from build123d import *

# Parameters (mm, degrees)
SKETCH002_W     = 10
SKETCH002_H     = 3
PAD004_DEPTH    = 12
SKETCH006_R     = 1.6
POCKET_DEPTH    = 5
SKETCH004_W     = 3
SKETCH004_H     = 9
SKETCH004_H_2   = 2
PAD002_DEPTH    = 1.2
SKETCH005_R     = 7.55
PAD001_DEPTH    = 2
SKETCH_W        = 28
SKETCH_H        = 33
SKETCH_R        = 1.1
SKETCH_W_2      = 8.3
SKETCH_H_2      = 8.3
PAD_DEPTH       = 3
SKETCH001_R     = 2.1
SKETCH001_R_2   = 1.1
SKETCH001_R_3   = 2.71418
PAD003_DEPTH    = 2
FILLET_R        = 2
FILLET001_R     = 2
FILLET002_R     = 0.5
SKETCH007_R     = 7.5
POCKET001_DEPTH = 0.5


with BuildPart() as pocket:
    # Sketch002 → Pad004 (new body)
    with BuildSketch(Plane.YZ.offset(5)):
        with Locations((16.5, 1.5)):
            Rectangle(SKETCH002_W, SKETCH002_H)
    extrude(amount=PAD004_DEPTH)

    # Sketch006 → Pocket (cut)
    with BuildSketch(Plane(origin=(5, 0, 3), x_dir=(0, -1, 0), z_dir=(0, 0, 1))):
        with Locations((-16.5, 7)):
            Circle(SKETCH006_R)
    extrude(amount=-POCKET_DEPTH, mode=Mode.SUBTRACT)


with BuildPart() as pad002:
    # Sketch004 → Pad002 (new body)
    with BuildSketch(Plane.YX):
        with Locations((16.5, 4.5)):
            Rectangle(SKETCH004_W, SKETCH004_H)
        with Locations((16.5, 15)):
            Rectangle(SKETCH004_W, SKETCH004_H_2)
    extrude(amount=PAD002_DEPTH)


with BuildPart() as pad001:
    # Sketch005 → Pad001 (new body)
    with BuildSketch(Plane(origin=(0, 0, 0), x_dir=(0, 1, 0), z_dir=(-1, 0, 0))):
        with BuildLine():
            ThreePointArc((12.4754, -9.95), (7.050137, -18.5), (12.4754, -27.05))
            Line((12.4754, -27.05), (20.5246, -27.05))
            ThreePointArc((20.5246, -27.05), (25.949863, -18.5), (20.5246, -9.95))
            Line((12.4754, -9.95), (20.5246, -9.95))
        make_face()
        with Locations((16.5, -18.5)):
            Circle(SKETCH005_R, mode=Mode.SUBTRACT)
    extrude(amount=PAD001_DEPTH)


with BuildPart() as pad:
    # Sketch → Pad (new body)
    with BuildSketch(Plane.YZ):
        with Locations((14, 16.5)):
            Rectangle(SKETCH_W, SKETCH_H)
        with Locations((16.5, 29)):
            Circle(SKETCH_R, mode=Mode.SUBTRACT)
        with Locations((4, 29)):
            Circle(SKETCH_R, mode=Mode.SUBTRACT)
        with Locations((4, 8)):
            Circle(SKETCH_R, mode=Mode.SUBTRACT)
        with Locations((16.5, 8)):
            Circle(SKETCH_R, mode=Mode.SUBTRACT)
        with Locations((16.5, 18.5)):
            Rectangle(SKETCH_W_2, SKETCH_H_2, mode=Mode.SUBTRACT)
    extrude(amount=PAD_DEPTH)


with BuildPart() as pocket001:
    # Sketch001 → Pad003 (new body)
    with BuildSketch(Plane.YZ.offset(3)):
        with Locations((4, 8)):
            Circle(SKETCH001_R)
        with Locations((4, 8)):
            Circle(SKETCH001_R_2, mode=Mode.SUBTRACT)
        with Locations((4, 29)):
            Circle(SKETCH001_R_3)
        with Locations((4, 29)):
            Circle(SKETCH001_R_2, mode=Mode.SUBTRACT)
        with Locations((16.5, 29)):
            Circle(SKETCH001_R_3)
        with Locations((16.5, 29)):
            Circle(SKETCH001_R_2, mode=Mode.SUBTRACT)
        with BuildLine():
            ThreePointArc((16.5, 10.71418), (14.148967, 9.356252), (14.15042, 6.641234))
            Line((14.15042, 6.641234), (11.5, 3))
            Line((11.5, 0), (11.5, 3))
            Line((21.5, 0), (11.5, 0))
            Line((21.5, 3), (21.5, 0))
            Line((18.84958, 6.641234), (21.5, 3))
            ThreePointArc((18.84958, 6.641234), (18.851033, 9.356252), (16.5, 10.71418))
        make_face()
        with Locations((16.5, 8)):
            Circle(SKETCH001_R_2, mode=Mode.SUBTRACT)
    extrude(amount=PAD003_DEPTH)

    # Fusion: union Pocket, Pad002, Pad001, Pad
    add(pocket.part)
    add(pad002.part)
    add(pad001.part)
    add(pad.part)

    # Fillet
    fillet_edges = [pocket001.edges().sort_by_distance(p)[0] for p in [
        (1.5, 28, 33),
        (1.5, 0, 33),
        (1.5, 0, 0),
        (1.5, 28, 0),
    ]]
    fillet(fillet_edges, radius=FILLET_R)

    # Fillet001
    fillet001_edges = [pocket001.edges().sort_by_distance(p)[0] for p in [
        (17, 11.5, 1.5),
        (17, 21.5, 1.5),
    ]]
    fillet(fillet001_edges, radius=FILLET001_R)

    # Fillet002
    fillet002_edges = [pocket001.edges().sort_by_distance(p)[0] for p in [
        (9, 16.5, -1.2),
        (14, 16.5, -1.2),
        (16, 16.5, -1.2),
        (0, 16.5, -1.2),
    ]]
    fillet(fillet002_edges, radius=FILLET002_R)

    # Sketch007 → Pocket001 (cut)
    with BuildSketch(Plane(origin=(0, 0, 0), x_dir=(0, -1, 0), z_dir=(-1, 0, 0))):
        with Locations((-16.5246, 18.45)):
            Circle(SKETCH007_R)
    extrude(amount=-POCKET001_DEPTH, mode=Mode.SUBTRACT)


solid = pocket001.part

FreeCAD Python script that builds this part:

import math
import FreeCAD as App
import Part
import Sketcher
from FreeCAD import Vector
Q = App.Units.Quantity


def edges_at(feature, points):
    """Names of the edges that pass closest to the given points."""
    edges = feature.Shape.Edges
    near = lambda p: min(range(len(edges)), key=lambda i: edges[i].distToShape(Part.Vertex(*p))[0])
    return sorted({f"Edge{near(p) + 1}" for p in points})


def add_polygon(sketch, points):
    """Adds a closed chain of lines whose ends are joined by coincident constraints."""
    first, n = sketch.GeometryCount, len(points)
    for a, b in zip(points, points[1:] + points[:1]):
        sketch.addGeometry(Part.LineSegment(App.Vector(*a, 0), App.Vector(*b, 0)), False)
    for i in range(n):
        sketch.addConstraint(Sketcher.Constraint("Coincident", first + i, 2, first + (i + 1) % n, 1))

doc = App.newDocument("Part")
body = doc.addObject("PartDesign::Body", "Body")

# Sketch on YZ plane
sketch1 = body.newObject("Sketcher::SketchObject", "Sketch")
sketch1.AttachmentSupport = (doc.getObject("YZ_Plane"), [""])
sketch1.MapMode = "FlatFace"
sketch1.AttachmentOffset = App.Placement(Vector(0, 0, 5), App.Rotation())
add_polygon(sketch1, [(11.5, 3), (11.5, 0), (21.5, 0), (21.5, 3)])  # lines 0-3
sketch1.addConstraint([
    Sketcher.Constraint("Vertical", 0),
    Sketcher.Constraint("Horizontal", 1),
    Sketcher.Constraint("Vertical", 2),
    Sketcher.Constraint("Horizontal", 3),
    Sketcher.Constraint("PointOnObject", 0, 2, -1),
    Sketcher.Constraint("DistanceX", 1, 1, 1, 2, Q("10 mm")),
    Sketcher.Constraint("DistanceY", 0, 2, 0, 1, Q("3 mm")),
    Sketcher.Constraint("DistanceX", -1, 1, 0, 2, Q("11.5 mm")),
])
pad1 = body.newObject("PartDesign::Pad", "Pad")
pad1.Profile = sketch1
pad1.Length = 12

# Sketch on XY plane
sketch2 = body.newObject("Sketcher::SketchObject", "Sketch001")
sketch2.AttachmentSupport = (doc.getObject("XY_Plane"), [""])
sketch2.MapMode = "FlatFace"
sketch2.AttachmentOffset = App.Placement(Vector(0, 0, 3), App.Rotation())
sketch2.addGeometry(Part.Circle(Vector(12, 16.5, 0), Vector(0, 0, 1), 1.6), False)
sketch2.addConstraint([
    Sketcher.Constraint("Diameter", 0, Q("3.2 mm")),
    Sketcher.Constraint("DistanceX", -1, 1, 0, 3, Q("12 mm")),
    Sketcher.Constraint("DistanceY", -1, 1, 0, 3, Q("16.5 mm")),
])
pocket1 = body.newObject("PartDesign::Pocket", "Pocket")
pocket1.Profile = sketch2
pocket1.Length = 5
body2 = doc.addObject("PartDesign::Body", "Body001")
body2.AllowCompound = True

# Sketch on XY plane
sketch3 = body2.newObject("Sketcher::SketchObject", "Sketch002")
sketch3.AttachmentSupport = (doc.getObject("XY_Plane001"), [""])
sketch3.MapMode = "FlatFace"
add_polygon(sketch3, [(9, 15), (0, 15), (0, 18), (9, 18)])  # lines 0-3
add_polygon(sketch3, [(16, 15), (14, 15), (14, 18), (16, 18)])  # lines 4-7
sketch3.addConstraint([
    Sketcher.Constraint("Horizontal", 0),
    Sketcher.Constraint("Vertical", 1),
    Sketcher.Constraint("Horizontal", 2),
    Sketcher.Constraint("Vertical", 3),
    Sketcher.Constraint("Horizontal", 4),
    Sketcher.Constraint("Vertical", 5),
    Sketcher.Constraint("Horizontal", 6),
    Sketcher.Constraint("Vertical", 7),
    Sketcher.Constraint("PointOnObject", 0, 2, -2),
    Sketcher.Constraint("Horizontal", 3, 2, 4, 2),
    Sketcher.Constraint("Horizontal", 2, 2, 5, 2),
    Sketcher.Constraint("DistanceX", 0, 2, 0, 1, Q("9 mm")),
    Sketcher.Constraint("DistanceX", 4, 2, 4, 1, Q("2 mm")),
    Sketcher.Constraint("DistanceY", 1, 1, 1, 2, Q("3 mm")),
    Sketcher.Constraint("DistanceY", -1, 1, 0, 2, Q("15 mm")),
    Sketcher.Constraint("DistanceX", -1, 1, 4, 2, Q("14 mm")),
])
pad2 = body2.newObject("PartDesign::Pad", "Pad001")
pad2.Profile = sketch3
pad2.Length = 1.2
pad2.Reversed = True
body3 = doc.addObject("PartDesign::Body", "Body002")

# Sketch on YZ plane
sketch4 = body3.newObject("Sketcher::SketchObject", "Sketch003")
sketch4.AttachmentSupport = (doc.getObject("YZ_Plane002"), [""])
sketch4.MapMode = "FlatFace"
sketch4.addGeometry([
    Part.ArcOfCircle(Part.Circle(Vector(16, 18, 0), Vector(0, 0, 1), 9), math.radians(115), math.radians(245)),  # 0
    Part.LineSegment(Vector(12, 27, 0), Vector(21, 27, 0)),  # 1
    Part.ArcOfCircle(Part.Circle(Vector(17, 18, 0), Vector(0, 0, 1), 9), math.radians(-65), math.radians(65)),  # 2
    Part.LineSegment(Vector(21, 10, 0), Vector(12, 10, 0)),  # 3
    Part.Circle(Vector(16, 18, 0), Vector(0, 0, 1), 8),  # 4
], False)
sketch4.addConstraint([
    Sketcher.Constraint("Coincident", 0, 1, 1, 1),
    Sketcher.Constraint("Coincident", 1, 2, 2, 2),
    Sketcher.Constraint("Coincident", 2, 1, 3, 1),
    Sketcher.Constraint("Coincident", 3, 2, 0, 2),
    Sketcher.Constraint("Horizontal", 1),
    Sketcher.Constraint("Horizontal", 3),
    Sketcher.Constraint("Coincident", 2, 3, 0, 3),
    Sketcher.Constraint("Coincident", 4, 3, 0, 3),
    Sketcher.Constraint("Equal", 0, 2),
    Sketcher.Constraint("Vertical", 1, 2, 2, 1),
    Sketcher.Constraint("Diameter", 4, Q("15.1 mm")),
    Sketcher.Constraint("DistanceX", -1, 1, 0, 3, Q("16.499999 mm")),
    Sketcher.Constraint("DistanceY", -1, 1, 0, 3, Q("18.5 mm")),
    Sketcher.Constraint("DistanceY", 2, 1, 1, 2, Q("17.1 mm")),
    Sketcher.Constraint("DistanceX", 1, 1, 1, 2, Q("8.0492 mm")),
])
pad3 = body3.newObject("PartDesign::Pad", "Pad002")
pad3.Profile = sketch4
pad3.Length = 2
pad3.Reversed = True
body4 = doc.addObject("PartDesign::Body", "Body003")

# Sketch on YZ plane
sketch5 = body4.newObject("Sketcher::SketchObject", "Sketch004")
sketch5.AttachmentSupport = (doc.getObject("YZ_Plane003"), [""])
sketch5.MapMode = "FlatFace"
add_polygon(sketch5, [(0, 33), (0, 0), (28, 0), (28, 33)])  # lines 0-3
sketch5.addGeometry(Part.Circle(Vector(4, 8, 0), Vector(0, 0, 1), 1.1), False)  # 4
sketch5.addGeometry(Part.Circle(Vector(16.5, 8, 0), Vector(0, 0, 1), 1.1), False)  # 5
sketch5.addGeometry(Part.Circle(Vector(4, 29, 0), Vector(0, 0, 1), 1.1), False)  # 6
add_polygon(sketch5, [(20.6, 14.3), (12.3, 14.3), (12.3, 22.6), (20.6, 22.6)])  # lines 7-10
sketch5.addGeometry(Part.Circle(Vector(16.5, 29, 0), Vector(0, 0, 1), 1.1), False)  # 11
sketch5.addConstraint([
    Sketcher.Constraint("Vertical", 0),
    Sketcher.Constraint("Horizontal", 1),
    Sketcher.Constraint("Vertical", 2),
    Sketcher.Constraint("Horizontal", 3),
    Sketcher.Constraint("Horizontal", 7),
    Sketcher.Constraint("Vertical", 8),
    Sketcher.Constraint("Horizontal", 9),
    Sketcher.Constraint("Vertical", 10),
    Sketcher.Constraint("Coincident", 0, 2, -1, 1),
    Sketcher.Constraint("Equal", 4, 5),
    Sketcher.Constraint("Equal", 5, 6),
    Sketcher.Constraint("Equal", 6, 11),
    Sketcher.Constraint("Horizontal", 4, 3, 5, 3),
    Sketcher.Constraint("Horizontal", 6, 3, 11, 3),
    Sketcher.Constraint("Vertical", 4, 3, 6, 3),
    Sketcher.Constraint("Vertical", 5, 3, 11, 3),
    Sketcher.Constraint("Equal", 9, 8),
    Sketcher.Constraint("Diameter", 4, Q("2.2 mm")),
    Sketcher.Constraint("DistanceX", 1, 1, 1, 2, Q("28 mm")),
    Sketcher.Constraint("DistanceY", 0, 2, 0, 1, Q("33 mm")),
    Sketcher.Constraint("DistanceX", 7, 2, 7, 1, Q("8.3 mm")),
    Sketcher.Constraint("DistanceX", -1, 1, 4, 3, Q("4 mm")),
    Sketcher.Constraint("DistanceY", -1, 1, 4, 3, Q("8 mm")),
    Sketcher.Constraint("DistanceY", -1, 1, 6, 3, Q("29 mm")),
    Sketcher.Constraint("DistanceX", -1, 1, 5, 3, Q("16.5 mm")),
    Sketcher.Constraint("DistanceX", -1, 1, 7, 2, Q("12.35 mm")),
    Sketcher.Constraint("DistanceY", -1, 1, 7, 2, Q("14.35 mm")),
])
pad4 = body4.newObject("PartDesign::Pad", "Pad003")
pad4.Profile = sketch5
pad4.Length = 3
body5 = doc.addObject("PartDesign::Body", "Body004")
body5.AllowCompound = True

# Sketch on YZ plane
sketch6 = body5.newObject("Sketcher::SketchObject", "Sketch005")
sketch6.AttachmentSupport = (doc.getObject("YZ_Plane004"), [""])
sketch6.MapMode = "FlatFace"
sketch6.AttachmentOffset = App.Placement(Vector(0, 0, 3), App.Rotation())
sketch6.addGeometry([
    Part.Circle(Vector(4, 8, 0), Vector(0, 0, 1), 2.1),  # 0
    Part.Circle(Vector(4, 8, 0), Vector(0, 0, 1), 1.1),  # 1
    Part.Circle(Vector(4, 29, 0), Vector(0, 0, 1), 2.7),  # 2
    Part.Circle(Vector(4, 29, 0), Vector(0, 0, 1), 1.1),  # 3
    Part.Circle(Vector(16.5, 29, 0), Vector(0, 0, 1), 2.7),  # 4
    Part.Circle(Vector(16.5, 29, 0), Vector(0, 0, 1), 1.1),  # 5
    Part.ArcOfCircle(Part.Circle(Vector(16.5, 8, 0), Vector(0, 0, 1), 2.7), math.radians(90), math.radians(210)),  # 6
    Part.LineSegment(Vector(14.2, 6.6, 0), Vector(11.5, 3, 0)),  # 7
    Part.LineSegment(Vector(11.5, 3, 0), Vector(11.5, 0, 0)),  # 8
    Part.LineSegment(Vector(11.5, 0, 0), Vector(21.5, 0, 0)),  # 9
    Part.LineSegment(Vector(21.5, 0, 0), Vector(21.5, 3, 0)),  # 10
    Part.LineSegment(Vector(21.5, 3, 0), Vector(18.8, 6.6, 0)),  # 11
    Part.ArcOfCircle(Part.Circle(Vector(16.5, 8, 0), Vector(0, 0, 1), 2.7), math.radians(-30), math.radians(90)),  # 12
    Part.Circle(Vector(16.5, 8, 0), Vector(0, 0, 1), 1.1),  # 13
], False)
sketch6.addConstraint([
    Sketcher.Constraint("Coincident", 6, 2, 7, 1),
    Sketcher.Constraint("Coincident", 7, 2, 8, 1),
    Sketcher.Constraint("Coincident", 8, 2, 9, 1),
    Sketcher.Constraint("Coincident", 9, 2, 10, 1),
    Sketcher.Constraint("Coincident", 10, 2, 11, 1),
    Sketcher.Constraint("Coincident", 11, 2, 12, 1),
    Sketcher.Constraint("Tangent", 12, 2, 6, 1),
    Sketcher.Constraint("Vertical", 8),
    Sketcher.Constraint("Horizontal", 9),
    Sketcher.Constraint("Vertical", 10),
    Sketcher.Constraint("Coincident", 1, 3, 0, 3),
    Sketcher.Constraint("Coincident", 3, 3, 2, 3),
    Sketcher.Constraint("Coincident", 5, 3, 4, 3),
    Sketcher.Constraint("Coincident", 13, 3, 6, 3),
    Sketcher.Constraint("Equal", 1, 3),
    Sketcher.Constraint("Equal", 2, 4),
    Sketcher.Constraint("Equal", 3, 5),
    Sketcher.Constraint("Equal", 4, 6),
    Sketcher.Constraint("Equal", 6, 12),
    Sketcher.Constraint("Equal", 5, 13),
    Sketcher.Constraint("PointOnObject", 8, 2, -1),
    Sketcher.Constraint("Horizontal", 3, 3, 4, 3),
    Sketcher.Constraint("Horizontal", 1, 3, 6, 3),
    Sketcher.Constraint("Horizontal", 7, 2, 10, 2),
    Sketcher.Constraint("Horizontal", 6, 2, 11, 2),
    Sketcher.Constraint("Vertical", 1, 3, 2, 3),
    Sketcher.Constraint("Vertical", 5, 3, 6, 3),
    Sketcher.Constraint("Vertical", 13, 3, 12, 2),
    Sketcher.Constraint("Equal", 7, 11),
    Sketcher.Constraint("Diameter", 0, Q("4.2 mm")),
    Sketcher.Constraint("Diameter", 1, Q("2.2 mm")),
    Sketcher.Constraint("DistanceX", 9, 1, 9, 2, Q("10 mm")),
    Sketcher.Constraint("DistanceY", 8, 2, 8, 1, Q("3 mm")),
    Sketcher.Constraint("DistanceX", -1, 1, 0, 3, Q("4 mm")),
    Sketcher.Constraint("DistanceY", -1, 1, 0, 3, Q("8 mm")),
    Sketcher.Constraint("DistanceY", -1, 1, 2, 3, Q("29 mm")),
    Sketcher.Constraint("DistanceX", -1, 1, 4, 3, Q("16.5 mm")),
    Sketcher.Constraint("Diameter", 2, Q("5.42836 mm")),
    Sketcher.Constraint("Distance", 7, Q("4.5037 mm")),
])
pad5 = body5.newObject("PartDesign::Pad", "Pad004")
pad5.Profile = sketch6
pad5.Length = 2
doc.recompute()

boolean = body5.newObject("PartDesign::Boolean", "Boolean")
boolean.Type = "Fuse"
boolean.addObjects([body])
doc.recompute()

boolean2 = body5.newObject("PartDesign::Boolean", "Boolean001")
boolean2.Type = "Fuse"
boolean2.addObjects([body2])
doc.recompute()

boolean3 = body5.newObject("PartDesign::Boolean", "Boolean002")
boolean3.Type = "Fuse"
boolean3.addObjects([body3])
doc.recompute()

boolean4 = body5.newObject("PartDesign::Boolean", "Boolean003")
boolean4.Type = "Fuse"
boolean4.addObjects([body4])
doc.recompute()

fillet = body5.newObject("PartDesign::Fillet", "Fillet")
fillet.Base = (boolean4, edges_at(boolean4, [
    (1.5, 28, 33),
    (1.5, 0, 33),
    (1.5, 0, 0),
    (1.5, 28, 0),
]))
fillet.Radius = 2
doc.recompute()

fillet2 = body5.newObject("PartDesign::Fillet", "Fillet001")
fillet2.Base = (fillet, edges_at(fillet, [(17, 11.5, 1.5), (17, 21.5, 1.5)]))
fillet2.Radius = 2
doc.recompute()

fillet3 = body5.newObject("PartDesign::Fillet", "Fillet002")
fillet3.Base = (fillet2, edges_at(fillet2, [
    (9, 16.5, -1.2),
    (14, 16.5, -1.2),
    (16, 16.5, -1.2),
    (0, 16.5, -1.2),
]))
fillet3.Radius = 0.5

# Sketch on YZ plane
sketch7 = body5.newObject("Sketcher::SketchObject", "Sketch006")
sketch7.AttachmentSupport = (doc.getObject("YZ_Plane004"), [""])
sketch7.MapMode = "FlatFace"
sketch7.addGeometry(Part.Circle(Vector(17, 18, 0), Vector(0, 0, 1), 8), False)
sketch7.addConstraint([
    Sketcher.Constraint("Diameter", 0, Q("15 mm")),
    Sketcher.Constraint("DistanceY", -1, 1, 0, 3, Q("18.45 mm")),
    Sketcher.Constraint("DistanceX", -1, 1, 0, 3, Q("16.5246 mm")),
])
pocket2 = body5.newObject("PartDesign::Pocket", "Pocket001")
pocket2.Profile = sketch7
pocket2.Length = 0.5
pocket2.Reversed = True

doc.recompute()
